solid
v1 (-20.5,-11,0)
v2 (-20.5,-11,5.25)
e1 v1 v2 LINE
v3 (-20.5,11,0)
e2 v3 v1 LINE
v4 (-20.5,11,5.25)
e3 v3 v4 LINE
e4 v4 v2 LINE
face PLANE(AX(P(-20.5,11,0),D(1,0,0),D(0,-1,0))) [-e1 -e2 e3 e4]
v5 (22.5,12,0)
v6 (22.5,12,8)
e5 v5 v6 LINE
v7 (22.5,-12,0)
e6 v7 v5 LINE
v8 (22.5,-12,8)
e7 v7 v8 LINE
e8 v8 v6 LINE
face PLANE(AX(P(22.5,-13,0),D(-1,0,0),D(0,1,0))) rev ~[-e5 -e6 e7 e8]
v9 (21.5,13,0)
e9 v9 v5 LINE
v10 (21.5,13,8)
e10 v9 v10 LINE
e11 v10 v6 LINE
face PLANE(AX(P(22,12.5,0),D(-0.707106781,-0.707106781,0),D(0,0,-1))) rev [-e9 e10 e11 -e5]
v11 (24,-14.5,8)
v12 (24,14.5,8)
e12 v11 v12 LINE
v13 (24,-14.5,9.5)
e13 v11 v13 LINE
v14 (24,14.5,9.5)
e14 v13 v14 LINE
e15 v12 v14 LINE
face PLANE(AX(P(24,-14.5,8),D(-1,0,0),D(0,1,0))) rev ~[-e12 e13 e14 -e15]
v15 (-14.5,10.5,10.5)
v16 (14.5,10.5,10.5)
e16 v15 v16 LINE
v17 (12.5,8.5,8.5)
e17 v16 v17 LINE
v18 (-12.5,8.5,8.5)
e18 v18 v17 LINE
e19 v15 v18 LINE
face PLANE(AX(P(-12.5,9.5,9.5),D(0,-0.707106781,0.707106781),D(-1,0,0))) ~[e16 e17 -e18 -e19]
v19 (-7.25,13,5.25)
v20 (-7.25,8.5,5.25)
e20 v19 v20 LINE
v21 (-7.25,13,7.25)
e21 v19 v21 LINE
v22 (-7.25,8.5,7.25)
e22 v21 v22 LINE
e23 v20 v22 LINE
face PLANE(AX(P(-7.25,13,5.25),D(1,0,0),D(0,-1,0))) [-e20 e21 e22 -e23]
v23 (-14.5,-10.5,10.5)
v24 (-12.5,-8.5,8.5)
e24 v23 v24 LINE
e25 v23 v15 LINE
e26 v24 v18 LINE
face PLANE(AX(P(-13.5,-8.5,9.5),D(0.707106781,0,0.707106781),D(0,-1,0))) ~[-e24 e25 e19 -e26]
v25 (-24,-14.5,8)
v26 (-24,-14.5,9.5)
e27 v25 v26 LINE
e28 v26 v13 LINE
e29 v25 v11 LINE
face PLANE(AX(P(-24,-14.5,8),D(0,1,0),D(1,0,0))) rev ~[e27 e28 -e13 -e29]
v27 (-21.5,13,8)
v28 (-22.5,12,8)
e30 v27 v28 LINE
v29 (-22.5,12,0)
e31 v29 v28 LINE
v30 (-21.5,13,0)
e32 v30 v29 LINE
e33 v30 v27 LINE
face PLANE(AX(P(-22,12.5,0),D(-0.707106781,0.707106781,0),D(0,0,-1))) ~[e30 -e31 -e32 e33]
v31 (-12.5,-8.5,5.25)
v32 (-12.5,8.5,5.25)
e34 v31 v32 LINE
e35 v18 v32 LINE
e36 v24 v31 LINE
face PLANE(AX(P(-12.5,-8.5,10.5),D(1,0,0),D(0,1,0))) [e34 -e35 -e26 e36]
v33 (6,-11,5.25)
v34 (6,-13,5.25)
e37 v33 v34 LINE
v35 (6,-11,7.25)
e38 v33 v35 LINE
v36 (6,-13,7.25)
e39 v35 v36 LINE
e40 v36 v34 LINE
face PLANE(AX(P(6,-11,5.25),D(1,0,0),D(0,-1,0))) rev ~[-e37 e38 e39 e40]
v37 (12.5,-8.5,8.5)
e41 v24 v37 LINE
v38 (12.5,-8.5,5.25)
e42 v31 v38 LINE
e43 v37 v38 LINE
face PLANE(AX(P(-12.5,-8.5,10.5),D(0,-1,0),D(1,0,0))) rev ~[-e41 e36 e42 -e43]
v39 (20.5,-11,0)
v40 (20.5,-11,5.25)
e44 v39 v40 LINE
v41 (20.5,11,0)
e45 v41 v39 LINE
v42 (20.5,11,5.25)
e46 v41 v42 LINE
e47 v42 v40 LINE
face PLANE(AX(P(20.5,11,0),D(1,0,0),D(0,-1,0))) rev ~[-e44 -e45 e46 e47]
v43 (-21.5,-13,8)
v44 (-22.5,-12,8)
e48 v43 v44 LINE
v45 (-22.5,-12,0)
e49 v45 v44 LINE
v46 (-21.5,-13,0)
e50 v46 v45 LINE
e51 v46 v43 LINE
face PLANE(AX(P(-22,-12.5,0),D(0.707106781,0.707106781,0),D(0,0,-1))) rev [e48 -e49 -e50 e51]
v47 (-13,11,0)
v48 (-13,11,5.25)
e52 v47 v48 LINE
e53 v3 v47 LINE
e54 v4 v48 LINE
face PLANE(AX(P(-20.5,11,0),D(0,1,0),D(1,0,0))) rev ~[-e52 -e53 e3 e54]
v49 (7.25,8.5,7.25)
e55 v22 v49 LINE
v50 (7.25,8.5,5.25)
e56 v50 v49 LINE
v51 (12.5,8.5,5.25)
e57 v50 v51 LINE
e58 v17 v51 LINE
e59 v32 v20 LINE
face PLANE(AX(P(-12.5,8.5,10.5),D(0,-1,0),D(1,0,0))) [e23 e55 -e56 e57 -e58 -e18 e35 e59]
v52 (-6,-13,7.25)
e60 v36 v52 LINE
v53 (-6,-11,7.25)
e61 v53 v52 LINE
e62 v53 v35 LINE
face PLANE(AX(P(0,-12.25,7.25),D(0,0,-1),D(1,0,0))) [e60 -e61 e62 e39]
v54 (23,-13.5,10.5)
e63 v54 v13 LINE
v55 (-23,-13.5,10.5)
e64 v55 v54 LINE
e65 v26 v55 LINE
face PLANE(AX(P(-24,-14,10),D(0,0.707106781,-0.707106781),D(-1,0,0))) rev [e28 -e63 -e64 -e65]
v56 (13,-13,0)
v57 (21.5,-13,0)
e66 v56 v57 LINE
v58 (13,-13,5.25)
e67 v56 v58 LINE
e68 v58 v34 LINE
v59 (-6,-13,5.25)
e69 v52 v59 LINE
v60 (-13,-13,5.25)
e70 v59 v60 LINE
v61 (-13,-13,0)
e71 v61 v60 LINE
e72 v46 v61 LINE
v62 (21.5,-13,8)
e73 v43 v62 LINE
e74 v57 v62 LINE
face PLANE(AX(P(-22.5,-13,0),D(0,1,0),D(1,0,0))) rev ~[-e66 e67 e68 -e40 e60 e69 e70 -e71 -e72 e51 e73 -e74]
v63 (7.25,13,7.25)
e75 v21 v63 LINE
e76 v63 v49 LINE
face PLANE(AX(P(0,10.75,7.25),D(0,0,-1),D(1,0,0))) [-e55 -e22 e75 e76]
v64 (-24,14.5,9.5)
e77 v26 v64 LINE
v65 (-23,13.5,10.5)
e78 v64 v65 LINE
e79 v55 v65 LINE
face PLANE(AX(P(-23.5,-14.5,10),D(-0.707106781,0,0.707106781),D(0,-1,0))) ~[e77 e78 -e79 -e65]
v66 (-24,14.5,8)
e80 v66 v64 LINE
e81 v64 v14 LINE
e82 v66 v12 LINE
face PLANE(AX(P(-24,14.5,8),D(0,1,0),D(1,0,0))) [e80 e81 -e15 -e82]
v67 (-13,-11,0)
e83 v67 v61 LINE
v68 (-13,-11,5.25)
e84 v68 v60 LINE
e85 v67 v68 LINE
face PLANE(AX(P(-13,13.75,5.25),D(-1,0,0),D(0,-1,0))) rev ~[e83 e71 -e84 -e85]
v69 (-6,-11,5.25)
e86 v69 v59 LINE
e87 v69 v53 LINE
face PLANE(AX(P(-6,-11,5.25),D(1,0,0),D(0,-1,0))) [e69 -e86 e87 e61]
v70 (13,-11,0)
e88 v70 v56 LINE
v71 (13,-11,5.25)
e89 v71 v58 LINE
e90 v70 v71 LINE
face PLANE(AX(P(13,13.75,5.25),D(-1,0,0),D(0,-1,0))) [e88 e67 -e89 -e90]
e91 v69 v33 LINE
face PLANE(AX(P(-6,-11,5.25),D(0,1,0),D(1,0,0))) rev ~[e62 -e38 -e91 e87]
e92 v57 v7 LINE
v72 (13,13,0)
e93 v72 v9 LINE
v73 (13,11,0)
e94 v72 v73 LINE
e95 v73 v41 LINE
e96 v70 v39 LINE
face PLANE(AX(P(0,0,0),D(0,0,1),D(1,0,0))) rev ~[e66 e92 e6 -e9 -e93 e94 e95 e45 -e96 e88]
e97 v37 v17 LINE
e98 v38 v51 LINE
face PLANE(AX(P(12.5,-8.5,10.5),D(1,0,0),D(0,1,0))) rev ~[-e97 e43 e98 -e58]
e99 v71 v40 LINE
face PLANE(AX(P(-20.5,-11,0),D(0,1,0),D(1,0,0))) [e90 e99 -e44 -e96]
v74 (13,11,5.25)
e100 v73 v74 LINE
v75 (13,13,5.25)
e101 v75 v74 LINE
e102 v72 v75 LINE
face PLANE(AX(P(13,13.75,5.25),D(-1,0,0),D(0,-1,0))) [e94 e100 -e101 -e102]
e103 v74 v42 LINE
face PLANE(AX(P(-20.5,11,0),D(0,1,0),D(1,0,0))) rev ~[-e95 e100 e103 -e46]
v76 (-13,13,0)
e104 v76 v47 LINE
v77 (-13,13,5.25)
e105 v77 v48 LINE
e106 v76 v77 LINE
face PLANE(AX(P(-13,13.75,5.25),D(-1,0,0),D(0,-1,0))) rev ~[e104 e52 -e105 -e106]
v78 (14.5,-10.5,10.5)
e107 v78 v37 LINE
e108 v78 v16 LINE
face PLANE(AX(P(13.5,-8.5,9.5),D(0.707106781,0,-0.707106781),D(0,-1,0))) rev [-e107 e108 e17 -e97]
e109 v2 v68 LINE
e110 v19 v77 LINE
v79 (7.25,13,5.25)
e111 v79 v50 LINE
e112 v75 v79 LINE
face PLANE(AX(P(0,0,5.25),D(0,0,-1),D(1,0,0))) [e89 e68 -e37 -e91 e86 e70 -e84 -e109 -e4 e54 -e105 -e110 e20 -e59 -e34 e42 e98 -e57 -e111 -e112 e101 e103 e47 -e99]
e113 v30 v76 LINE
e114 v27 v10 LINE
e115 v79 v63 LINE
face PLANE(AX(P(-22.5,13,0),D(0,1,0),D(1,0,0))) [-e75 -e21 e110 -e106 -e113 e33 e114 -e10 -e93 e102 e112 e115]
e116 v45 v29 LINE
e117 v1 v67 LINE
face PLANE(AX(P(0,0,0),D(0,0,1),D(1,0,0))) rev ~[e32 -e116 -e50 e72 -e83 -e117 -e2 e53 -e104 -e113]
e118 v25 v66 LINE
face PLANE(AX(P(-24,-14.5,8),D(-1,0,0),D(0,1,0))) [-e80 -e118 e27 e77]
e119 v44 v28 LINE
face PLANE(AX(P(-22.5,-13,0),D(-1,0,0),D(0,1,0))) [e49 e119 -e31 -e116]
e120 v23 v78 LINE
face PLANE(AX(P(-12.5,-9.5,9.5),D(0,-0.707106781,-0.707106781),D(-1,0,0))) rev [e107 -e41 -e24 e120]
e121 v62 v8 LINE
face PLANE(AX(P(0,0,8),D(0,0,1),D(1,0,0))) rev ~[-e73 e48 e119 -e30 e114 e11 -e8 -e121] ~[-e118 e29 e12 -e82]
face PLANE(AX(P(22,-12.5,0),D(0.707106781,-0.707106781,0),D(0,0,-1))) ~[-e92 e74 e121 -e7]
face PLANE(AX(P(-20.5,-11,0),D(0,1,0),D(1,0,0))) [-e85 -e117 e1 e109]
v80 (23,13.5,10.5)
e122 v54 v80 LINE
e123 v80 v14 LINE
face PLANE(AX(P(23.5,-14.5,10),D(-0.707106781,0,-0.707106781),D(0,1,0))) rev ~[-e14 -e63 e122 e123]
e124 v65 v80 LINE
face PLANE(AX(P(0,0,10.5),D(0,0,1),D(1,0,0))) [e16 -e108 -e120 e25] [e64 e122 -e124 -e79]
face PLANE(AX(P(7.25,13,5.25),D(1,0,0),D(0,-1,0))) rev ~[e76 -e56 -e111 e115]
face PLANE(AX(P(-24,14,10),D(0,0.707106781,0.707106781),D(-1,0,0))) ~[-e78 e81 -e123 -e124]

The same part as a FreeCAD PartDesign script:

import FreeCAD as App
import Part
import Sketcher


def edges_at(feature, points):
    """Names of the edges that pass closest to the given points."""
    edges = feature.Shape.Edges
    near = lambda p: min(range(len(edges)), key=lambda i: edges[i].distToShape(Part.Vertex(*p))[0])
    return sorted({f"Edge{near(p) + 1}" for p in points})

doc = App.newDocument("Part")
body = doc.addObject("PartDesign::Body", "Body")

sketch1 = body.newObject("Sketcher::SketchObject", "Sketch")
sketch1.AttachmentSupport = (doc.getObject("XY_Plane"), [""])
sketch1.MapMode = "FlatFace"
sketch1.addGeometry([
    Part.LineSegment(App.Vector(-22, 13, 0), App.Vector(-22, -13, 0)),
    Part.LineSegment(App.Vector(-22, -13, 0), App.Vector(22, -13, 0)),
    Part.LineSegment(App.Vector(22, -13, 0), App.Vector(22, 13, 0)),
    Part.LineSegment(App.Vector(22, 13, 0), App.Vector(-22, 13, 0)),
], False)
sketch1.addConstraint([
    Sketcher.Constraint("Coincident", 0, 2, 1, 1),
    Sketcher.Constraint("Coincident", 1, 2, 2, 1),
    Sketcher.Constraint("Coincident", 2, 2, 3, 1),
    Sketcher.Constraint("Coincident", 3, 2, 0, 1),
    Sketcher.Constraint("Vertical", 0),
    Sketcher.Constraint("Horizontal", 1),
    Sketcher.Constraint("Vertical", 2),
    Sketcher.Constraint("Horizontal", 3),
    Sketcher.Constraint("Symmetric", 0, 2, 2, 2, -1, 1),
    Sketcher.Constraint("DistanceX", 1, 1, 1, 2, 45.0),
    Sketcher.Constraint("DistanceY", 0, 2, 0, 1, 26.0),
])
pad1 = body.newObject("PartDesign::Pad", "Pad")
pad1.Profile = sketch1
pad1.Length = 8

sketch2 = body.newObject("Sketcher::SketchObject", "Sketch001")
sketch2.AttachmentSupport = (doc.getObject("XY_Plane"), [""])
sketch2.MapMode = "FlatFace"
sketch2.AttachmentOffset = App.Placement(App.Vector(0, 0, 8), App.Rotation())
sketch2.addGeometry([
    Part.LineSegment(App.Vector(-24, 14, 0), App.Vector(-24, -14, 0)),
    Part.LineSegment(App.Vector(-24, -14, 0), App.Vector(24, -14, 0)),
    Part.LineSegment(App.Vector(24, -14, 0), App.Vector(24, 14, 0)),
    Part.LineSegment(App.Vector(24, 14, 0), App.Vector(-24, 14, 0)),
], False)
sketch2.addConstraint([
    Sketcher.Constraint("Coincident", 0, 2, 1, 1),
    Sketcher.Constraint("Coincident", 1, 2, 2, 1),
    Sketcher.Constraint("Coincident", 2, 2, 3, 1),
    Sketcher.Constraint("Coincident", 3, 2, 0, 1),
    Sketcher.Constraint("Vertical", 0),
    Sketcher.Constraint("Horizontal", 1),
    Sketcher.Constraint("Vertical", 2),
    Sketcher.Constraint("Horizontal", 3),
    Sketcher.Constraint("Symmetric", 0, 2, 2, 2, -1, 1),
    Sketcher.Constraint("DistanceX", 1, 1, 1, 2, 48.0),
    Sketcher.Constraint("DistanceY", 0, 2, 0, 1, 29.0),
])
pad2 = body.newObject("PartDesign::Pad", "Pad001")
pad2.Profile = sketch2
pad2.Length = 2.5

sketch3 = body.newObject("Sketcher::SketchObject", "Sketch002")
sketch3.AttachmentSupport = (doc.getObject("XY_Plane"), [""])
sketch3.MapMode = "FlatFace"
sketch3.AttachmentOffset = App.Placement(App.Vector(0, 0, 10.5), App.Rotation())
sketch3.addGeometry([
    Part.LineSegment(App.Vector(-12, 8, 0), App.Vector(-12, -8, 0)),
    Part.LineSegment(App.Vector(-12, -8, 0), App.Vector(12, -8, 0)),
    Part.LineSegment(App.Vector(12, -8, 0), App.Vector(12, 8, 0)),
    Part.LineSegment(App.Vector(12, 8, 0), App.Vector(-12, 8, 0)),
], False)
sketch3.addConstraint([
    Sketcher.Constraint("Coincident", 0, 2, 1, 1),
    Sketcher.Constraint("Coincident", 1, 2, 2, 1),
    Sketcher.Constraint("Coincident", 2, 2, 3, 1),
    Sketcher.Constraint("Coincident", 3, 2, 0, 1),
    Sketcher.Constraint("Vertical", 0),
    Sketcher.Constraint("Horizontal", 1),
    Sketcher.Constraint("Vertical", 2),
    Sketcher.Constraint("Horizontal", 3),
    Sketcher.Constraint("Symmetric", 0, 2, 2, 2, -1, 1),
    Sketcher.Constraint("DistanceX", 1, 1, 1, 2, 25.0),
    Sketcher.Constraint("DistanceY", 0, 2, 0, 1, 17.0),
])
pocket1 = body.newObject("PartDesign::Pocket", "Pocket")
pocket1.Profile = sketch3
pocket1.Type = "ThroughAll"

sketch4 = body.newObject("Sketcher::SketchObject", "Sketch003")
sketch4.AttachmentSupport = (doc.getObject("XY_Plane"), [""])
sketch4.MapMode = "FlatFace"
sketch4.addGeometry([
    Part.LineSegment(App.Vector(-20, -11, 0), App.Vector(-20, 11, 0)),
    Part.LineSegment(App.Vector(-20, 11, 0), App.Vector(20, 11, 0)),
    Part.LineSegment(App.Vector(20, 11, 0), App.Vector(20, -11, 0)),
    Part.LineSegment(App.Vector(20, -11, 0), App.Vector(-20, -11, 0)),
], False)
sketch4.addConstraint([
    Sketcher.Constraint("Coincident", 0, 2, 1, 1),
    Sketcher.Constraint("Coincident", 1, 2, 2, 1),
    Sketcher.Constraint("Coincident", 2, 2, 3, 1),
    Sketcher.Constraint("Coincident", 3, 2, 0, 1),
    Sketcher.Constraint("Vertical", 0),
    Sketcher.Constraint("Horizontal", 1),
    Sketcher.Constraint("Vertical", 2),
    Sketcher.Constraint("Horizontal", 3),
    Sketcher.Constraint("Symmetric", 0, 2, 2, 2, -1, 1),
    Sketcher.Constraint("DistanceX", 1, 1, 1, 2, 41.0),
    Sketcher.Constraint("DistanceY", 0, 1, 0, 2, 22.0),
])
pocket2 = body.newObject("PartDesign::Pocket", "Pocket001")
pocket2.Profile = sketch4
pocket2.Length = 5.25
pocket2.Reversed = True

sketch5 = body.newObject("Sketcher::SketchObject", "Sketch004")
sketch5.AttachmentSupport = (doc.getObject("XY_Plane"), [""])
sketch5.MapMode = "FlatFace"
sketch5.AttachmentOffset = App.Placement(App.Vector(0, 0, 5.25), App.Rotation())
sketch5.addGeometry([
    Part.LineSegment(App.Vector(-13, -14, 0), App.Vector(-13, 14, 0)),
    Part.LineSegment(App.Vector(-13, 14, 0), App.Vector(13, 14, 0)),
    Part.LineSegment(App.Vector(13, 14, 0), App.Vector(13, -14, 0)),
    Part.LineSegment(App.Vector(13, -14, 0), App.Vector(-13, -14, 0)),
], False)
sketch5.addConstraint([
    Sketcher.Constraint("Coincident", 0, 2, 1, 1),
    Sketcher.Constraint("Coincident", 1, 2, 2, 1),
    Sketcher.Constraint("Coincident", 2, 2, 3, 1),
    Sketcher.Constraint("Coincident", 3, 2, 0, 1),
    Sketcher.Constraint("Vertical", 0),
    Sketcher.Constraint("Horizontal", 1),
    Sketcher.Constraint("Vertical", 2),
    Sketcher.Constraint("Horizontal", 3),
    Sketcher.Constraint("Symmetric", 0, 2, 2, 2, -1, 1),
    Sketcher.Constraint("DistanceX", 1, 1, 1, 2, 26.0),
    Sketcher.Constraint("DistanceY", 0, 1, 0, 2, 27.5),
])
pocket3 = body.newObject("PartDesign::Pocket", "Pocket002")
pocket3.Profile = sketch5
pocket3.Type = "ThroughAll"

sketch6 = body.newObject("Sketcher::SketchObject", "Sketch005")
sketch6.AttachmentSupport = (doc.getObject("XY_Plane"), [""])
sketch6.MapMode = "FlatFace"
sketch6.AttachmentOffset = App.Placement(App.Vector(0, 0, 5.25), App.Rotation())
sketch6.addGeometry([
    Part.LineSegment(App.Vector(-6, -13.5, 0), App.Vector(-6, -11, 0)),
    Part.LineSegment(App.Vector(-6, -11, 0), App.Vector(6, -11, 0)),
    Part.LineSegment(App.Vector(6, -11, 0), App.Vector(6, -13.5, 0)),
    Part.LineSegment(App.Vector(6, -13.5, 0), App.Vector(-6, -13.5, 0)),
], False)
sketch6.addConstraint([
    Sketcher.Constraint("Coincident", 0, 2, 1, 1),
    Sketcher.Constraint("Coincident", 1, 2, 2, 1),
    Sketcher.Constraint("Coincident", 2, 2, 3, 1),
    Sketcher.Constraint("Coincident", 3, 2, 0, 1),
    Sketcher.Constraint("Vertical", 0),
    Sketcher.Constraint("Horizontal", 1),
    Sketcher.Constraint("Vertical", 2),
    Sketcher.Constraint("Horizontal", 3),
    Sketcher.Constraint("DistanceX", 1, 1, 1, 2, 12.0),
    Sketcher.Constraint("DistanceY", 0, 1, 0, 2, 2.5),
    Sketcher.Constraint("DistanceX", 0, 2, -1, 1, 6.0),
    Sketcher.Constraint("DistanceY", 0, 2, -1, 1, 11.0),
])
pocket4 = body.newObject("PartDesign::Pocket", "Pocket003")
pocket4.Profile = sketch6
pocket4.Length = 2
pocket4.Reversed = True

sketch7 = body.newObject("Sketcher::SketchObject", "Sketch006")
sketch7.AttachmentSupport = (doc.getObject("XY_Plane"), [""])
sketch7.MapMode = "FlatFace"
sketch7.AttachmentOffset = App.Placement(App.Vector(0, 0, 5.25), App.Rotation())
sketch7.addGeometry([
    Part.LineSegment(App.Vector(-7.2, 8.5, 0), App.Vector(-7.2, 13, 0)),
    Part.LineSegment(App.Vector(-7.2, 13, 0), App.Vector(7.2, 13, 0)),
    Part.LineSegment(App.Vector(7.2, 13, 0), App.Vector(7.2, 8.5, 0)),
    Part.LineSegment(App.Vector(7.2, 8.5, 0), App.Vector(-7.2, 8.5, 0)),
], False)
sketch7.addConstraint([
    Sketcher.Constraint("Coincident", 0, 2, 1, 1),
    Sketcher.Constraint("Coincident", 1, 2, 2, 1),
    Sketcher.Constraint("Coincident", 2, 2, 3, 1),
    Sketcher.Constraint("Coincident", 3, 2, 0, 1),
    Sketcher.Constraint("Vertical", 0),
    Sketcher.Constraint("Horizontal", 1),
    Sketcher.Constraint("Vertical", 2),
    Sketcher.Constraint("Horizontal", 3),
    Sketcher.Constraint("DistanceX", 1, 1, 1, 2, 14.5),
    Sketcher.Constraint("DistanceY", 0, 1, 0, 2, 4.5),
    Sketcher.Constraint("DistanceY", -1, 1, 0, 2, 13.0),
    Sketcher.Constraint("DistanceX", 0, 2, -1, 1, 7.25),
])
pocket5 = body.newObject("PartDesign::Pocket", "Pocket004")
pocket5.Profile = sketch7
pocket5.Length = 2
pocket5.Reversed = True
doc.recompute()

chamfer = body.newObject("PartDesign::Chamfer", "Chamfer")
chamfer.Base = (pocket5, edges_at(pocket5, [
    (24, 0, 10.5),
    (0, -14.5, 10.5),
    (0, 14.5, 10.5),
    (-24, 0, 10.5),
]))
chamfer.Size = 1
doc.recompute()

chamfer2 = body.newObject("PartDesign::Chamfer", "Chamfer001")
chamfer2.Base = (chamfer, edges_at(chamfer, [
    (0, 8.5, 10.5),
    (-12.5, 0, 10.5),
    (0, -8.5, 10.5),
    (12.5, 0, 10.5),
]))
chamfer2.Size = 2
doc.recompute()

chamfer3 = body.newObject("PartDesign::Chamfer", "Chamfer002")
chamfer3.Base = (chamfer2, edges_at(chamfer2, [
    (-22.5, 13, 4),
    (-22.5, -13, 4),
    (22.5, 13, 4),
    (22.5, -13, 4),
]))
chamfer3.Size = 1

doc.recompute()
